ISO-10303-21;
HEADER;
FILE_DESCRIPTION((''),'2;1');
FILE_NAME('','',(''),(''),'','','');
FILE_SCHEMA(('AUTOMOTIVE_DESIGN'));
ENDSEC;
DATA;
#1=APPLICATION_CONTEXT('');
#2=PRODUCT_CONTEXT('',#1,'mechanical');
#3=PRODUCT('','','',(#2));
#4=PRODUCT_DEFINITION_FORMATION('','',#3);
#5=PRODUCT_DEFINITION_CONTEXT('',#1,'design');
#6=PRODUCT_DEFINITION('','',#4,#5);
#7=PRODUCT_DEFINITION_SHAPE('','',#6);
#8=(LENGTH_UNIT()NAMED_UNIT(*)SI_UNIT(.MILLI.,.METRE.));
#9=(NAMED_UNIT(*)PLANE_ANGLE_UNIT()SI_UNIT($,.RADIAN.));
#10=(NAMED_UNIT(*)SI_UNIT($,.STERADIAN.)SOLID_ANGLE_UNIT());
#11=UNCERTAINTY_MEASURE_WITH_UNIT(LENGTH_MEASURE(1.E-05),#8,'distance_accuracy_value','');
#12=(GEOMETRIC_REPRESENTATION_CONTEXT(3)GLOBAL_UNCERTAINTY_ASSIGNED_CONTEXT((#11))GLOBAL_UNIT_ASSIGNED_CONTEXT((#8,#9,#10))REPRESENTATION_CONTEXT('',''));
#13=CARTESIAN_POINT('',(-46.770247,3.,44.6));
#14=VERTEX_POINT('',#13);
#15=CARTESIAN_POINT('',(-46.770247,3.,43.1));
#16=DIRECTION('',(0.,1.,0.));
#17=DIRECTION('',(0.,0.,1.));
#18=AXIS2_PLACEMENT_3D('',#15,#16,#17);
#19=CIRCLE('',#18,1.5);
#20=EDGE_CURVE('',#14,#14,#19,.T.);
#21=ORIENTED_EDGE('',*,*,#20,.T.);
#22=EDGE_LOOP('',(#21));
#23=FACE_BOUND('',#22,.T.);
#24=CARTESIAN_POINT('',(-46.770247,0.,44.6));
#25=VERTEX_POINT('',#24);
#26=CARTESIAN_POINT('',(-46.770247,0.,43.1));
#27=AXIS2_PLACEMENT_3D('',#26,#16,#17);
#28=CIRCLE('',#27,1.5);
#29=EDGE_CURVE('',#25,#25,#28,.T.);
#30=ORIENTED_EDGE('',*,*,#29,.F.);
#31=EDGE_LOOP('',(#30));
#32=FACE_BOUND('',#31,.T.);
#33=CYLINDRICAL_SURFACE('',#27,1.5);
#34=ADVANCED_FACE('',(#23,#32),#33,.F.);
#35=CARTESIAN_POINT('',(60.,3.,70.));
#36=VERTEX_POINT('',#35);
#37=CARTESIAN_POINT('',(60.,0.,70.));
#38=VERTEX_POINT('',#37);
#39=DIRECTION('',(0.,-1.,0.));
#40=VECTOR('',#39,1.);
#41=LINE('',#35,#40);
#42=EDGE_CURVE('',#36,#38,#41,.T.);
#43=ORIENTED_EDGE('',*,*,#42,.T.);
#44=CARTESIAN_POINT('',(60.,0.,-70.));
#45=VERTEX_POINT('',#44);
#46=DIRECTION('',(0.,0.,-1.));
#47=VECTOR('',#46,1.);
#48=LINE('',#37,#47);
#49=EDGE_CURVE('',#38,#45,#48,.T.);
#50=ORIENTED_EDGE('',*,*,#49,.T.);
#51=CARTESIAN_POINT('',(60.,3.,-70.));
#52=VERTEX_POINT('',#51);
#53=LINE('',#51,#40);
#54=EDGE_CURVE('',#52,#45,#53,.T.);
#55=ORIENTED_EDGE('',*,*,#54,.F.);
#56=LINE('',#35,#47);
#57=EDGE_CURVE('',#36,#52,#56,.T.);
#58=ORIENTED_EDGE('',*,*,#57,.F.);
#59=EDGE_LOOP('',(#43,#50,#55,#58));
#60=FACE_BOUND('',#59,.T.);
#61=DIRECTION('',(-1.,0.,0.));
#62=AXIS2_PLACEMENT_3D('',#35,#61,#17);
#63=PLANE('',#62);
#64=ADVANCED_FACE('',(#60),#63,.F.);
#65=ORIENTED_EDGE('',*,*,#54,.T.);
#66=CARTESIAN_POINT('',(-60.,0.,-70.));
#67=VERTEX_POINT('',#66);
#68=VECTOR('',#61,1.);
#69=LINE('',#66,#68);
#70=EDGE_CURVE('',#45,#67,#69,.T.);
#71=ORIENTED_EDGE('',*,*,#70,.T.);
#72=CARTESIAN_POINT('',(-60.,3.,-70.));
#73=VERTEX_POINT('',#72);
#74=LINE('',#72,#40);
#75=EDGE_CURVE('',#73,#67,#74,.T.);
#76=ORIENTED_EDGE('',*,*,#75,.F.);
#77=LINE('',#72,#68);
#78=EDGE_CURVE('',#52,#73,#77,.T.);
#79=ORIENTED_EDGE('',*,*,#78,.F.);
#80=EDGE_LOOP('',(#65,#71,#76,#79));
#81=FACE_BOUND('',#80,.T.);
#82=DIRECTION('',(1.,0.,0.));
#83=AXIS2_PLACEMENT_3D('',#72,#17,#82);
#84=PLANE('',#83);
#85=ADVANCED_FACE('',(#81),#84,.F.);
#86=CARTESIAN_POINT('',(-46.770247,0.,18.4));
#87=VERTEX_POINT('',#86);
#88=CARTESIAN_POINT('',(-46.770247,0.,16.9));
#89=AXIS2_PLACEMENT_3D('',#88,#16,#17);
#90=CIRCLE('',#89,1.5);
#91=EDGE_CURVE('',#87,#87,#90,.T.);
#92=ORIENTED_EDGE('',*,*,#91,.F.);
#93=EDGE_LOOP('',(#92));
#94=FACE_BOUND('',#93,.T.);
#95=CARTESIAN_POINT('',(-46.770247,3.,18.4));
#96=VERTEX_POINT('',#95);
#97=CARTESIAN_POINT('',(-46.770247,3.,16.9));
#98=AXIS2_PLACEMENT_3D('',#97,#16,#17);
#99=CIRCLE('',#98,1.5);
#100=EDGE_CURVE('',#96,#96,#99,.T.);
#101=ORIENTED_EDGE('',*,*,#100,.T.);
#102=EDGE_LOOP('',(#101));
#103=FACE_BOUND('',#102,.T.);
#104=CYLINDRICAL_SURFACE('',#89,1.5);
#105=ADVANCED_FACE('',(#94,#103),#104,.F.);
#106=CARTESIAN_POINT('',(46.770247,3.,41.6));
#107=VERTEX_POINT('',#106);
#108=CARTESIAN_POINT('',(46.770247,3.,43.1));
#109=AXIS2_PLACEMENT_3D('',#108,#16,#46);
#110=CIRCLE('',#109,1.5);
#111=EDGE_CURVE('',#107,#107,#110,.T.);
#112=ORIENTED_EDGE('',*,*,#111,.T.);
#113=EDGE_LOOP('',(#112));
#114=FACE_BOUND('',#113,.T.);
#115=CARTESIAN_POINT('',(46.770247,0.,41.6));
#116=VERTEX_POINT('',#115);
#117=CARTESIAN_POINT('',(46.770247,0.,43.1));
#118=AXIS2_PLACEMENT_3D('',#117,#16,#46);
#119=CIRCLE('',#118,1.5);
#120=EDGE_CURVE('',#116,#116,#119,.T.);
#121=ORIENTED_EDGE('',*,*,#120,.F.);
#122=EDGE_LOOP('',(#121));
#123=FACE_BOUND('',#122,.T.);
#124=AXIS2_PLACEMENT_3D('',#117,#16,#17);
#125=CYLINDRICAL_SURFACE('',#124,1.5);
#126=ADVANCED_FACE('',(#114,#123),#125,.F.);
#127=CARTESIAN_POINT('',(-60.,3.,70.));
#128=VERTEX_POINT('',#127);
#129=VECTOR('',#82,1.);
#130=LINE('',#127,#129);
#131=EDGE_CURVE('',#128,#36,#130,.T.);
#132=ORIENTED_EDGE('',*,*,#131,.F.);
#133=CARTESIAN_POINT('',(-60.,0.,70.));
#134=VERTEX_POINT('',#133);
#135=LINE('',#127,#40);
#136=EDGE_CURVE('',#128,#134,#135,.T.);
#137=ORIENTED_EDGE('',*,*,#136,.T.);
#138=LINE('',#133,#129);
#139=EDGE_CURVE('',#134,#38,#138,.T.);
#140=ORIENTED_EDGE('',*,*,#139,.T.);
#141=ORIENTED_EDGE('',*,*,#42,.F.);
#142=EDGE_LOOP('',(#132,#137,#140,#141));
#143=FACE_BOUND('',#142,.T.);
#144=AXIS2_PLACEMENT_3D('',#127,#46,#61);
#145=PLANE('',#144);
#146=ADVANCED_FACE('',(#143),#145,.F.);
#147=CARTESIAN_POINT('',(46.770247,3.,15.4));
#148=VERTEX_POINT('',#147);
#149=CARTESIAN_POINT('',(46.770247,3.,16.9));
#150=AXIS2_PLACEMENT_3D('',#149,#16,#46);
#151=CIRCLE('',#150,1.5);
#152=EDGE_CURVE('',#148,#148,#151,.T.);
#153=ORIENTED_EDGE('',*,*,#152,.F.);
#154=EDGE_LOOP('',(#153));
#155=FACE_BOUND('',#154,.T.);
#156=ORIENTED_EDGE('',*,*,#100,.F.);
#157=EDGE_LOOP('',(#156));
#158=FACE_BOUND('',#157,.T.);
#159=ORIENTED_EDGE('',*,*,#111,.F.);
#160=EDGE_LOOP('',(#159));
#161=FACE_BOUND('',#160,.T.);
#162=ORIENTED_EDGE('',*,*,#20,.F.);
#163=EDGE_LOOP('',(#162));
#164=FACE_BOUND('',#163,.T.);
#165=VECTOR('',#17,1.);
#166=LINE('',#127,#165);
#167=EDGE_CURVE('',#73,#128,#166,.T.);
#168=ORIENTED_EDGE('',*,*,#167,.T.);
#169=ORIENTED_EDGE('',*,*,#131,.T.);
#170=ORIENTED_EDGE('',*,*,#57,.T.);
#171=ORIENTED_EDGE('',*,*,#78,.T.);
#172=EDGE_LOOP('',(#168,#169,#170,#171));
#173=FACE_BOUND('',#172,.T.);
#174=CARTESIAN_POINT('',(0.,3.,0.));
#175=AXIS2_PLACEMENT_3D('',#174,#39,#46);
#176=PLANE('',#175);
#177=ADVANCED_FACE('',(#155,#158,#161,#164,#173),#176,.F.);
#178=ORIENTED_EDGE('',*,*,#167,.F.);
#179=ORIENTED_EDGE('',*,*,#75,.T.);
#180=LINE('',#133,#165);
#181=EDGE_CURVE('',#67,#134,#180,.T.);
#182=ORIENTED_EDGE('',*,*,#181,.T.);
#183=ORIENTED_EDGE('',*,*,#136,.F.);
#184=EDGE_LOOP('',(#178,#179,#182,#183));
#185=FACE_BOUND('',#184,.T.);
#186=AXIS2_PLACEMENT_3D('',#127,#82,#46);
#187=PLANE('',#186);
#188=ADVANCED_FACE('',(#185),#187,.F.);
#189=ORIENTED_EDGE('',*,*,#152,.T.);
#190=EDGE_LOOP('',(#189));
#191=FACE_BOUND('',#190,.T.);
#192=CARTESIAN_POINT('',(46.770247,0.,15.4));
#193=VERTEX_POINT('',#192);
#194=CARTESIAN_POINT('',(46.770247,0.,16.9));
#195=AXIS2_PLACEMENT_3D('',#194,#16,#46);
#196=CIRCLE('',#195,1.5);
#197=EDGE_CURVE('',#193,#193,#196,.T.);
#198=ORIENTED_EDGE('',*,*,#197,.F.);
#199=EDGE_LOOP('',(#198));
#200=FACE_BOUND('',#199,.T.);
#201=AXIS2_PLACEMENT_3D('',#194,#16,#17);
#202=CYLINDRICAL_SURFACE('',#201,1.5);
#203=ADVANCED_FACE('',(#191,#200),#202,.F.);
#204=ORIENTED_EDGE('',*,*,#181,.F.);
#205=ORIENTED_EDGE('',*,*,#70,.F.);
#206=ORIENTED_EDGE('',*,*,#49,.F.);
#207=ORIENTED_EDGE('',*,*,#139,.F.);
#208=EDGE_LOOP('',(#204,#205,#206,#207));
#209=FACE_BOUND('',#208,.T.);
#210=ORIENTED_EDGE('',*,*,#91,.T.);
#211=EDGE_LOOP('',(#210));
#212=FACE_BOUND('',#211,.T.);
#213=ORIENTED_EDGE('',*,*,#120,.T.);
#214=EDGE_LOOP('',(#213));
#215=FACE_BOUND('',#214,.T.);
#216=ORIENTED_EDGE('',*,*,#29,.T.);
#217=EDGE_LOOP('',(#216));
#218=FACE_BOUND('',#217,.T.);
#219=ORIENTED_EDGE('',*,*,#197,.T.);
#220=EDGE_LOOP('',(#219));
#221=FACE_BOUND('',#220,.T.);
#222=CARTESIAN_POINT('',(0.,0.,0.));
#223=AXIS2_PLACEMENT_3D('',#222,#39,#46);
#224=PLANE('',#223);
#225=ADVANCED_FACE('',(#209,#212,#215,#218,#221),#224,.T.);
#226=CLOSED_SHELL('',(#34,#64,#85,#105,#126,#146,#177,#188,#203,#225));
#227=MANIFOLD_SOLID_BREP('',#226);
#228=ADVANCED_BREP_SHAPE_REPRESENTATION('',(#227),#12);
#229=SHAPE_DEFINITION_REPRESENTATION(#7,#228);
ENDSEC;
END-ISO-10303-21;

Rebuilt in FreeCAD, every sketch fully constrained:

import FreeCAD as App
import Part
import Sketcher
from FreeCAD import Vector
Q = App.Units.Quantity

doc = App.newDocument("Part")
body = doc.addObject("PartDesign::Body", "Body")

# Sketch on XZ plane
sketch1 = body.newObject("Sketcher::SketchObject", "Sketch")
sketch1.AttachmentSupport = (doc.getObject("XZ_Plane"), [""])
sketch1.MapMode = "FlatFace"
sketch1.addGeometry([
    Part.LineSegment(Vector(-60, -70, 0), Vector(-60, 70, 0)),
    Part.LineSegment(Vector(-60, 70, 0), Vector(60, 70, 0)),
    Part.LineSegment(Vector(60, 70, 0), Vector(60, -70, 0)),
    Part.LineSegment(Vector(60, -70, 0), Vector(-60, -70, 0)),
], False)
sketch1.addConstraint([
    Sketcher.Constraint("Coincident", 0, 2, 1, 1),
    Sketcher.Constraint("Coincident", 1, 2, 2, 1),
    Sketcher.Constraint("Coincident", 2, 2, 3, 1),
    Sketcher.Constraint("Coincident", 3, 2, 0, 1),
    Sketcher.Constraint("Vertical", 0),
    Sketcher.Constraint("Horizontal", 1),
    Sketcher.Constraint("Vertical", 2),
    Sketcher.Constraint("Horizontal", 3),
    Sketcher.Constraint("Symmetric", 0, 2, 2, 2, -1, 1),
    Sketcher.Constraint("DistanceX", 1, 1, 1, 2, Q("120 mm")),
    Sketcher.Constraint("DistanceY", 0, 1, 0, 2, Q("140 mm")),
])
pad1 = body.newObject("PartDesign::Pad", "Pad")
pad1.Profile = sketch1
pad1.Length = 3
pad1.Reversed = True

# Sketch on XZ plane
sketch2 = body.newObject("Sketcher::SketchObject", "Sketch001")
sketch2.AttachmentSupport = (doc.getObject("XZ_Plane"), [""])
sketch2.MapMode = "FlatFace"
sketch2.AttachmentOffset = App.Placement(Vector(0, 0, -3), App.Rotation())
sketch2.addGeometry([
    Part.Circle(Vector(-46.8, 16.9, 0), Vector(0, 0, 1), 1.5),
    Part.Circle(Vector(-46.8, 43.1, 0), Vector(0, 0, 1), 1.5),
    Part.Circle(Vector(46.8, 43.1, 0), Vector(0, 0, 1), 1.5),
    Part.Circle(Vector(46.8, 16.9, 0), Vector(0, 0, 1), 1.5),
], False)
sketch2.addConstraint([
    Sketcher.Constraint("Equal", 0, 1),
    Sketcher.Constraint("Equal", 1, 2),
    Sketcher.Constraint("Equal", 2, 3),
    Sketcher.Constraint("Symmetric", 1, 3, 2, 3, -2),
    Sketcher.Constraint("Symmetric", 0, 3, 3, 3, -2),
    Sketcher.Constraint("Vertical", 0, 3, 1, 3),
    Sketcher.Constraint("Diameter", 0, Q("3 mm")),
    Sketcher.Constraint("DistanceY", -1, 1, 0, 3, Q("16.9 mm")),
    Sketcher.Constraint("DistanceY", -1, 1, 1, 3, Q("43.1 mm")),
    Sketcher.Constraint("DistanceX", 0, 3, -1, 1, Q("46.770247 mm")),
])
pocket1 = body.newObject("PartDesign::Pocket", "Pocket")
pocket1.Profile = sketch2
pocket1.Type = "ThroughAll"
pocket1.Reversed = True

doc.recompute()
